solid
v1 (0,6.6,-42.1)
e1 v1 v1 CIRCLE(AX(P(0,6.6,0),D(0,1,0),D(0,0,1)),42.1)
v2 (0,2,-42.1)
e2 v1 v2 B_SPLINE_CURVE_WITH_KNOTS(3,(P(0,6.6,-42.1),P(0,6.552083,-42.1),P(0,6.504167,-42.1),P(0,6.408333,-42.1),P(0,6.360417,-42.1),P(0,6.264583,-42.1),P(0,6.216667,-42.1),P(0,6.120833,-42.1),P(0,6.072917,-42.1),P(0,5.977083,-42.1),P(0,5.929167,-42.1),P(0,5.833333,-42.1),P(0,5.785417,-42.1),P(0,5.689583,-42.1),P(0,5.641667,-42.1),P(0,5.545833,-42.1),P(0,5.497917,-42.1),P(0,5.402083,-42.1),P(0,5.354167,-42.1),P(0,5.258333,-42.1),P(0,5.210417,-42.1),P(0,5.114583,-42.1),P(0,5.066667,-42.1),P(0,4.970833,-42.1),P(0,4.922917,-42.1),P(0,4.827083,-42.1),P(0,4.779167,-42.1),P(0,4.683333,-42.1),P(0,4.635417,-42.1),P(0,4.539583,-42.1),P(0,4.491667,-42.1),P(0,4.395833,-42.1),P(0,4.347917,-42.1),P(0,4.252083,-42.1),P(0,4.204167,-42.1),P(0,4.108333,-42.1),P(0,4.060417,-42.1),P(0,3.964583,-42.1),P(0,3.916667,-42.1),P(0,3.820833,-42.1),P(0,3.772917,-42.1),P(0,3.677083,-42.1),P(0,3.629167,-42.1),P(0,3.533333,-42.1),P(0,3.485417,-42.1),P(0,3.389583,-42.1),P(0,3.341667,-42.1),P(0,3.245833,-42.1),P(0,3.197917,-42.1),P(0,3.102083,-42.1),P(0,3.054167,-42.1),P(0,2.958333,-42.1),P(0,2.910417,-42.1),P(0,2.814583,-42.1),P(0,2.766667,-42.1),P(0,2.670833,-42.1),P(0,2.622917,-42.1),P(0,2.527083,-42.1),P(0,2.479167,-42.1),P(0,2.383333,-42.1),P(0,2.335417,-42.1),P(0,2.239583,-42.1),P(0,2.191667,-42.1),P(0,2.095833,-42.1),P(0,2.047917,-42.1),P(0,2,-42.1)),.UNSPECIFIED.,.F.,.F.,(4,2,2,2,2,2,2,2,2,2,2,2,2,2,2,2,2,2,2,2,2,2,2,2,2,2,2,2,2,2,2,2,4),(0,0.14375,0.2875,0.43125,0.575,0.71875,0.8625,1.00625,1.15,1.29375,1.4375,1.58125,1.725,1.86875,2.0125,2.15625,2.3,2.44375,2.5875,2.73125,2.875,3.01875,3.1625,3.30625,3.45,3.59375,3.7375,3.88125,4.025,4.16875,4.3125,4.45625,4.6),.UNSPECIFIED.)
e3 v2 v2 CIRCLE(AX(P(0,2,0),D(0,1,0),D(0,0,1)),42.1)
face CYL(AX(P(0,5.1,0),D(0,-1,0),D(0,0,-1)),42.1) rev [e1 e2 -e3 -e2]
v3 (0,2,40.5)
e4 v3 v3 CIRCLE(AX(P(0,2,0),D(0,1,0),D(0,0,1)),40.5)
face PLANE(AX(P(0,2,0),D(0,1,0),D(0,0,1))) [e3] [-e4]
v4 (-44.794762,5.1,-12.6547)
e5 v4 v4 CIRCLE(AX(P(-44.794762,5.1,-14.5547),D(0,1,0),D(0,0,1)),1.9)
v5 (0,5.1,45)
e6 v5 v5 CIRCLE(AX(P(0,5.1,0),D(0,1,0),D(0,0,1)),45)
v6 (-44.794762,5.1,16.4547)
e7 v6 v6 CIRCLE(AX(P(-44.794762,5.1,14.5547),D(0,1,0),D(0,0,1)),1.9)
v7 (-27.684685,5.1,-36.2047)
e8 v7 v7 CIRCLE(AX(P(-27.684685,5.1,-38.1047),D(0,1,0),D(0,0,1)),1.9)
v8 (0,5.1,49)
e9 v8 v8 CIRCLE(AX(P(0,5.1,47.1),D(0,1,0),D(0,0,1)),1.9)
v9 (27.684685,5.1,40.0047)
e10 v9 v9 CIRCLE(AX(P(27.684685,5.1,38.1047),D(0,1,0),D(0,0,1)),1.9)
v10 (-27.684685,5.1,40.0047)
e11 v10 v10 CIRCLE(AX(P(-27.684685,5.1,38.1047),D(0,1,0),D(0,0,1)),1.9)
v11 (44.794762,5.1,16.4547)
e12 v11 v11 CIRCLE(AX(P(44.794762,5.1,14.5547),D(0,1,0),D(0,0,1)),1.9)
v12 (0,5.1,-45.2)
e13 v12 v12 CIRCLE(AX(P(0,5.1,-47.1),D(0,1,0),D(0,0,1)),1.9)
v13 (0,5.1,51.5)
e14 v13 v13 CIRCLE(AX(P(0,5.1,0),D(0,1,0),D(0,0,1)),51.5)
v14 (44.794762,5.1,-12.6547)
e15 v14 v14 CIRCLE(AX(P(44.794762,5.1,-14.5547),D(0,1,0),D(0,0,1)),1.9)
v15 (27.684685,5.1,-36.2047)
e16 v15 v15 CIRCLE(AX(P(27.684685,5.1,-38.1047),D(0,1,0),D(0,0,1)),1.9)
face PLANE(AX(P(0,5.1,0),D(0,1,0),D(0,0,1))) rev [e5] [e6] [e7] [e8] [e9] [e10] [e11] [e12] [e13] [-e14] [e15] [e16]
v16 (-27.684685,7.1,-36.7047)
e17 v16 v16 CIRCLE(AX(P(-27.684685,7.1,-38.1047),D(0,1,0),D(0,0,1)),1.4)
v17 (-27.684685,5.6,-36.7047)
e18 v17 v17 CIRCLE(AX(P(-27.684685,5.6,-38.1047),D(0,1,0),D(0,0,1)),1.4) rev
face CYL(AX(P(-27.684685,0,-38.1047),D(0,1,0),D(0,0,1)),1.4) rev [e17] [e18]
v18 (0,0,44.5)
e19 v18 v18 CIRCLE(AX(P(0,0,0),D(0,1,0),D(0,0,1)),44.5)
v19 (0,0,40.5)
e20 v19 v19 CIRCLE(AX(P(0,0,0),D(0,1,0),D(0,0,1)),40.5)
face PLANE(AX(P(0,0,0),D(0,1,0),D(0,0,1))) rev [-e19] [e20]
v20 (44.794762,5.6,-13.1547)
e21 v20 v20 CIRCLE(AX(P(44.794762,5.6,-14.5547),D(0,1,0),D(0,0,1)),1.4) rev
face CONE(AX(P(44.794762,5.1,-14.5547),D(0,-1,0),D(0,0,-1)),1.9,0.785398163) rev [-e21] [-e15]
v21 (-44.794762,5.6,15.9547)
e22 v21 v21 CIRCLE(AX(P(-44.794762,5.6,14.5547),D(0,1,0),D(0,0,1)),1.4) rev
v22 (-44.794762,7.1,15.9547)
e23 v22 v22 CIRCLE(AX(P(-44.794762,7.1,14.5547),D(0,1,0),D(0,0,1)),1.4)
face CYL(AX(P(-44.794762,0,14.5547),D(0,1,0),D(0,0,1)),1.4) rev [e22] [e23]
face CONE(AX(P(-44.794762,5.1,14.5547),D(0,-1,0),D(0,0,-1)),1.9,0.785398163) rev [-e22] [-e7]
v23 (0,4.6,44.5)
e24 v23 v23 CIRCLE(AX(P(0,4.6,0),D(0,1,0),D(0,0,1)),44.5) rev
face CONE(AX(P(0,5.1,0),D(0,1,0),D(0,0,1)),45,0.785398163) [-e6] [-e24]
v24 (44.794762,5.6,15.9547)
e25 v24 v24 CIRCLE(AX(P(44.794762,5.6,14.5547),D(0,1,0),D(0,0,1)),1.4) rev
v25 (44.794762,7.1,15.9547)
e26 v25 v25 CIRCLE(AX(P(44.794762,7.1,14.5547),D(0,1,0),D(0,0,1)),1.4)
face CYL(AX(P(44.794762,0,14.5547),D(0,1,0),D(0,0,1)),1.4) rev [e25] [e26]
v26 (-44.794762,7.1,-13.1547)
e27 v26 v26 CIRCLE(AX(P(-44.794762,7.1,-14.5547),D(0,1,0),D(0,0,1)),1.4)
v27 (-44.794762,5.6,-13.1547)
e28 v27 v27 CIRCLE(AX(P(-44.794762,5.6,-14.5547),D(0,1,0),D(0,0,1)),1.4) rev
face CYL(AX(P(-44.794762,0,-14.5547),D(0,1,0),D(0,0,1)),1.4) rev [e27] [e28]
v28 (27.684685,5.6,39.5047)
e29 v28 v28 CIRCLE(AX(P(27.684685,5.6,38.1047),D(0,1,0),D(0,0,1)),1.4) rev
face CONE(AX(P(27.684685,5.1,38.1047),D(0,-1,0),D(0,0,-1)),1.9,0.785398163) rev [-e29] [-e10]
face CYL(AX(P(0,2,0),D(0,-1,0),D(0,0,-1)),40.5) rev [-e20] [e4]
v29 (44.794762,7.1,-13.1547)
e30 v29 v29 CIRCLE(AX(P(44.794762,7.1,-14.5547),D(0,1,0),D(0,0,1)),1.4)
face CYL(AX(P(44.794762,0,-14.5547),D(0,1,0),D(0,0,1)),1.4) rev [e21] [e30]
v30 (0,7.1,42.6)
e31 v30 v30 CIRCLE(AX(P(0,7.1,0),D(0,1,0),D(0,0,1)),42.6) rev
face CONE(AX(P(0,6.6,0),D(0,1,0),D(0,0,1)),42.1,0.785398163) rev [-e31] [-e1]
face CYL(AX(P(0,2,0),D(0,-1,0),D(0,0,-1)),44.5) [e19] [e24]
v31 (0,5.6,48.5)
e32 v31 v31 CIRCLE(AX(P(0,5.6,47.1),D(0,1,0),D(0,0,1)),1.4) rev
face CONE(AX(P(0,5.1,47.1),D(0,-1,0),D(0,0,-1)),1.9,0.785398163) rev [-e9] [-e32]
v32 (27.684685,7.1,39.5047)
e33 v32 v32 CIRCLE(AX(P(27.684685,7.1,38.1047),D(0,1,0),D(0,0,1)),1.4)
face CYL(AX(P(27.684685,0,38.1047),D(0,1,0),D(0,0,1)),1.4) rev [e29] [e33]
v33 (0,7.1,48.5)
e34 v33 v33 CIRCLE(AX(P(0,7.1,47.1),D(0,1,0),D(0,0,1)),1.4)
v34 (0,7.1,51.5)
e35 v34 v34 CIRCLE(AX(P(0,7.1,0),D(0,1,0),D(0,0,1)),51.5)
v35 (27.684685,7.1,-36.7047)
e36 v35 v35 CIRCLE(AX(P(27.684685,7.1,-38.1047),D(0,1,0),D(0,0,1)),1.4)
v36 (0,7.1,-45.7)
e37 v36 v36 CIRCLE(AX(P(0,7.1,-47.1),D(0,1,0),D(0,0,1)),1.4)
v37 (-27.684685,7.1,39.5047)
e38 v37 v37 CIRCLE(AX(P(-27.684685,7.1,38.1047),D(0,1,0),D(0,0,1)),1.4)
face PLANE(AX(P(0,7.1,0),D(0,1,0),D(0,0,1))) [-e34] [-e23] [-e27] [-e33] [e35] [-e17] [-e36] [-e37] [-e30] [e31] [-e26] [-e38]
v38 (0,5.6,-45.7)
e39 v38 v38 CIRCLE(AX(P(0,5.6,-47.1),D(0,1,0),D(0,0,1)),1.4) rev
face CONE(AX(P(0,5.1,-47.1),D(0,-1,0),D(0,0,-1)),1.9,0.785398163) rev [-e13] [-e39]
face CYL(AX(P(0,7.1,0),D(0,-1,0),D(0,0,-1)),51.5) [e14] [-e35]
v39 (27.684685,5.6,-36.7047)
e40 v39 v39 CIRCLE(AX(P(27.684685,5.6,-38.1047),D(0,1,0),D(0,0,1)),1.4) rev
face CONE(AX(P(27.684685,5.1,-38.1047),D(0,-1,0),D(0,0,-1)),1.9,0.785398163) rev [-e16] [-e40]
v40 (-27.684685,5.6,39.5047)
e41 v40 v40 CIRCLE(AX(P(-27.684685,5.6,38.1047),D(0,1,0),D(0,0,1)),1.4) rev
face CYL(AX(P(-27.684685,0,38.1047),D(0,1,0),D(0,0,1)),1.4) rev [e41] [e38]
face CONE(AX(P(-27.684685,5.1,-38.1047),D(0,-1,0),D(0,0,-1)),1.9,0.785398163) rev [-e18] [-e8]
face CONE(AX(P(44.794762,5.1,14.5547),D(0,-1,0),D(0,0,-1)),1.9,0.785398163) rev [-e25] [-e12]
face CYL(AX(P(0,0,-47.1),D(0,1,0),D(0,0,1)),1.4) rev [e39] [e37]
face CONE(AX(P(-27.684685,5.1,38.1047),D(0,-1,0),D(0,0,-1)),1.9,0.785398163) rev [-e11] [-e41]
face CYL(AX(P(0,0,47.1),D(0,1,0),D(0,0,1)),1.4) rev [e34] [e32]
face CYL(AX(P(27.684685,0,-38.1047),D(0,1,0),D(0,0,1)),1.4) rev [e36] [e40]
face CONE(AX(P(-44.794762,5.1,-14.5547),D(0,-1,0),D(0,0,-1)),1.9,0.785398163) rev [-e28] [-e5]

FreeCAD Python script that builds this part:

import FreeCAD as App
import Part
import Sketcher


def edges_at(feature, points):
    """Names of the edges that pass closest to the given points."""
    edges = feature.Shape.Edges
    near = lambda p: min(range(len(edges)), key=lambda i: edges[i].distToShape(Part.Vertex(*p))[0])
    return sorted({f"Edge{near(p) + 1}" for p in points})

doc = App.newDocument("Part")
body = doc.addObject("PartDesign::Body", "Body")

# Sketch on XZ plane
sketch1 = doc.addObject("Sketcher::SketchObject", "Sketch")
body.addObject(sketch1)
sketch1.AttachmentSupport = (doc.XZ_Plane, [""])
sketch1.MapMode = "FlatFace"
sketch1.addGeometry(Part.Circle(App.Vector(0, 0, 0), App.Vector(0, 0, 1), 44), False)
sketch1.addGeometry(Part.Circle(App.Vector(0, 0, 0), App.Vector(0, 0, 1), 40), False)
sketch1.addConstraint(Sketcher.Constraint("Coincident", 0, 3, -1, 1))
sketch1.addConstraint(Sketcher.Constraint("Coincident", 1, 3, -1, 1))
sketch1.addConstraint(Sketcher.Constraint("Diameter", 0, 89.0))
sketch1.addConstraint(Sketcher.Constraint("Diameter", 1, 81.0))
pad1 = doc.addObject("PartDesign::Pad", "Pad")
body.addObject(pad1)
pad1.Profile = sketch1
pad1.Length = 2
pad1.Reversed = True

# Sketch on XZ plane
sketch2 = doc.addObject("Sketcher::SketchObject", "Sketch001")
body.addObject(sketch2)
sketch2.AttachmentSupport = (doc.XZ_Plane, [""])
sketch2.MapMode = "FlatFace"
sketch2.AttachmentOffset = App.Placement(App.Vector(0, 0, -2), App.Rotation())
sketch2.addGeometry(Part.Circle(App.Vector(0, 0, 0), App.Vector(0, 0, 1), 44), False)
sketch2.addGeometry(Part.Circle(App.Vector(0, 0, 0), App.Vector(0, 0, 1), 42), False)
sketch2.addConstraint(Sketcher.Constraint("Coincident", 0, 3, -1, 1))
sketch2.addConstraint(Sketcher.Constraint("Coincident", 1, 3, -1, 1))
sketch2.addConstraint(Sketcher.Constraint("Diameter", 0, 89.0))
sketch2.addConstraint(Sketcher.Constraint("Diameter", 1, 84.2))
pad2 = doc.addObject("PartDesign::Pad", "Pad001")
body.addObject(pad2)
pad2.Profile = sketch2
pad2.Length = 3.1
pad2.Reversed = True

# Sketch on XZ plane
sketch3 = doc.addObject("Sketcher::SketchObject", "Sketch002")
body.addObject(sketch3)
sketch3.AttachmentSupport = (doc.XZ_Plane, [""])
sketch3.MapMode = "FlatFace"
sketch3.AttachmentOffset = App.Placement(App.Vector(0, 0, -5.1), App.Rotation())
sketch3.addGeometry(Part.Circle(App.Vector(0, 0, 0), App.Vector(0, 0, 1), 52), False)
sketch3.addGeometry(Part.Circle(App.Vector(0, 0, 0), App.Vector(0, 0, 1), 42), False)
sketch3.addConstraint(Sketcher.Constraint("Coincident", 0, 3, -1, 1))
sketch3.addConstraint(Sketcher.Constraint("Coincident", 1, 3, -1, 1))
sketch3.addConstraint(Sketcher.Constraint("Diameter", 0, 103.0))
sketch3.addConstraint(Sketcher.Constraint("Diameter", 1, 84.2))
pad3 = doc.addObject("PartDesign::Pad", "Pad002")
body.addObject(pad3)
pad3.Profile = sketch3
pad3.Length = 2
pad3.Reversed = True

# Sketch on XZ plane
sketch4 = doc.addObject("Sketcher::SketchObject", "Sketch003")
body.addObject(sketch4)
sketch4.AttachmentSupport = (doc.XZ_Plane, [""])
sketch4.MapMode = "FlatFace"
sketch4.AttachmentOffset = App.Placement(App.Vector(0, 0, -7.1), App.Rotation())
sketch4.addGeometry(Part.Circle(App.Vector(0, -47.1, 0), App.Vector(0, 0, 1), 1.4), False)
sketch4.addGeometry(Part.Circle(App.Vector(27.7, -38.1, 0), App.Vector(0, 0, 1), 1.4), False)
sketch4.addGeometry(Part.Circle(App.Vector(44.8, -14.6, 0), App.Vector(0, 0, 1), 1.4), False)
sketch4.addGeometry(Part.Circle(App.Vector(44.8, 14.6, 0), App.Vector(0, 0, 1), 1.4), False)
sketch4.addGeometry(Part.Circle(App.Vector(27.7, 38.1, 0), App.Vector(0, 0, 1), 1.4), False)
sketch4.addGeometry(Part.Circle(App.Vector(0, 47.1, 0), App.Vector(0, 0, 1), 1.4), False)
sketch4.addGeometry(Part.Circle(App.Vector(-27.7, 38.1, 0), App.Vector(0, 0, 1), 1.4), False)
sketch4.addGeometry(Part.Circle(App.Vector(-44.8, 14.6, 0), App.Vector(0, 0, 1), 1.4), False)
sketch4.addGeometry(Part.Circle(App.Vector(-44.8, -14.6, 0), App.Vector(0, 0, 1), 1.4), False)
sketch4.addGeometry(Part.Circle(App.Vector(-27.7, -38.1, 0), App.Vector(0, 0, 1), 1.4), False)
sketch4.addConstraint(Sketcher.Constraint("Equal", 0, 1))
sketch4.addConstraint(Sketcher.Constraint("Equal", 1, 2))
sketch4.addConstraint(Sketcher.Constraint("Equal", 2, 3))
sketch4.addConstraint(Sketcher.Constraint("Equal", 3, 4))
sketch4.addConstraint(Sketcher.Constraint("Equal", 4, 5))
sketch4.addConstraint(Sketcher.Constraint("Equal", 5, 6))
sketch4.addConstraint(Sketcher.Constraint("Equal", 6, 7))
sketch4.addConstraint(Sketcher.Constraint("Equal", 7, 8))
sketch4.addConstraint(Sketcher.Constraint("Equal", 8, 9))
sketch4.addConstraint(Sketcher.Constraint("Symmetric", 0, 3, 5, 3, -1, 1))
sketch4.addConstraint(Sketcher.Constraint("Symmetric", 1, 3, 6, 3, -1, 1))
sketch4.addConstraint(Sketcher.Constraint("Symmetric", 2, 3, 7, 3, -1, 1))
sketch4.addConstraint(Sketcher.Constraint("Symmetric", 3, 3, 8, 3, -1, 1))
sketch4.addConstraint(Sketcher.Constraint("Symmetric", 4, 3, 9, 3, -1, 1))
sketch4.addConstraint(Sketcher.Constraint("Symmetric", 4, 3, 6, 3, -2))
sketch4.addConstraint(Sketcher.Constraint("Symmetric", 3, 3, 7, 3, -2))
sketch4.addConstraint(Sketcher.Constraint("PointOnObject", 0, 3, -2))
sketch4.addConstraint(Sketcher.Constraint("Diameter", 0, 2.8))
sketch4.addConstraint(Sketcher.Constraint("DistanceY", 0, 3, -1, 1, 47.1))
sketch4.addConstraint(Sketcher.Constraint("DistanceY", 1, 3, 2, 3, 23.55))
sketch4.addConstraint(Sketcher.Constraint("DistanceY", 1, 3, -1, 1, 38.1047))
sketch4.addConstraint(Sketcher.Constraint("DistanceX", -1, 1, 2, 3, 44.794762))
sketch4.addConstraint(Sketcher.Constraint("DistanceX", 6, 3, 4, 3, 55.369371))
pocket1 = doc.addObject("PartDesign::Pocket", "Pocket")
body.addObject(pocket1)
pocket1.Profile = sketch4
pocket1.Type = "ThroughAll"
pocket1.Reversed = True
doc.recompute()

chamfer = doc.addObject("PartDesign::Chamfer", "Chamfer")
body.addObject(chamfer)
chamfer.Base = (pocket1, edges_at(pocket1, [
    (0, 5.1, -48.5),
    (-27.685, 5.1, -39.505),
    (-44.795, 5.1, -15.955),
    (-44.795, 5.1, 13.155),
    (-27.685, 5.1, 36.705),
    (0, 5.1, 45.7),
    (27.685, 5.1, 36.705),
    (44.795, 5.1, 13.155),
    (44.795, 5.1, -15.955),
    (27.685, 5.1, -39.505),
]))
chamfer.Size = 0.5
doc.recompute()

chamfer2 = doc.addObject("PartDesign::Chamfer", "Chamfer001")
body.addObject(chamfer2)
chamfer2.Base = (chamfer, edges_at(chamfer, [(0, 5.1, -44.5), (0, 7.1, 42.1)]))
chamfer2.Size = 0.5

doc.recompute()
